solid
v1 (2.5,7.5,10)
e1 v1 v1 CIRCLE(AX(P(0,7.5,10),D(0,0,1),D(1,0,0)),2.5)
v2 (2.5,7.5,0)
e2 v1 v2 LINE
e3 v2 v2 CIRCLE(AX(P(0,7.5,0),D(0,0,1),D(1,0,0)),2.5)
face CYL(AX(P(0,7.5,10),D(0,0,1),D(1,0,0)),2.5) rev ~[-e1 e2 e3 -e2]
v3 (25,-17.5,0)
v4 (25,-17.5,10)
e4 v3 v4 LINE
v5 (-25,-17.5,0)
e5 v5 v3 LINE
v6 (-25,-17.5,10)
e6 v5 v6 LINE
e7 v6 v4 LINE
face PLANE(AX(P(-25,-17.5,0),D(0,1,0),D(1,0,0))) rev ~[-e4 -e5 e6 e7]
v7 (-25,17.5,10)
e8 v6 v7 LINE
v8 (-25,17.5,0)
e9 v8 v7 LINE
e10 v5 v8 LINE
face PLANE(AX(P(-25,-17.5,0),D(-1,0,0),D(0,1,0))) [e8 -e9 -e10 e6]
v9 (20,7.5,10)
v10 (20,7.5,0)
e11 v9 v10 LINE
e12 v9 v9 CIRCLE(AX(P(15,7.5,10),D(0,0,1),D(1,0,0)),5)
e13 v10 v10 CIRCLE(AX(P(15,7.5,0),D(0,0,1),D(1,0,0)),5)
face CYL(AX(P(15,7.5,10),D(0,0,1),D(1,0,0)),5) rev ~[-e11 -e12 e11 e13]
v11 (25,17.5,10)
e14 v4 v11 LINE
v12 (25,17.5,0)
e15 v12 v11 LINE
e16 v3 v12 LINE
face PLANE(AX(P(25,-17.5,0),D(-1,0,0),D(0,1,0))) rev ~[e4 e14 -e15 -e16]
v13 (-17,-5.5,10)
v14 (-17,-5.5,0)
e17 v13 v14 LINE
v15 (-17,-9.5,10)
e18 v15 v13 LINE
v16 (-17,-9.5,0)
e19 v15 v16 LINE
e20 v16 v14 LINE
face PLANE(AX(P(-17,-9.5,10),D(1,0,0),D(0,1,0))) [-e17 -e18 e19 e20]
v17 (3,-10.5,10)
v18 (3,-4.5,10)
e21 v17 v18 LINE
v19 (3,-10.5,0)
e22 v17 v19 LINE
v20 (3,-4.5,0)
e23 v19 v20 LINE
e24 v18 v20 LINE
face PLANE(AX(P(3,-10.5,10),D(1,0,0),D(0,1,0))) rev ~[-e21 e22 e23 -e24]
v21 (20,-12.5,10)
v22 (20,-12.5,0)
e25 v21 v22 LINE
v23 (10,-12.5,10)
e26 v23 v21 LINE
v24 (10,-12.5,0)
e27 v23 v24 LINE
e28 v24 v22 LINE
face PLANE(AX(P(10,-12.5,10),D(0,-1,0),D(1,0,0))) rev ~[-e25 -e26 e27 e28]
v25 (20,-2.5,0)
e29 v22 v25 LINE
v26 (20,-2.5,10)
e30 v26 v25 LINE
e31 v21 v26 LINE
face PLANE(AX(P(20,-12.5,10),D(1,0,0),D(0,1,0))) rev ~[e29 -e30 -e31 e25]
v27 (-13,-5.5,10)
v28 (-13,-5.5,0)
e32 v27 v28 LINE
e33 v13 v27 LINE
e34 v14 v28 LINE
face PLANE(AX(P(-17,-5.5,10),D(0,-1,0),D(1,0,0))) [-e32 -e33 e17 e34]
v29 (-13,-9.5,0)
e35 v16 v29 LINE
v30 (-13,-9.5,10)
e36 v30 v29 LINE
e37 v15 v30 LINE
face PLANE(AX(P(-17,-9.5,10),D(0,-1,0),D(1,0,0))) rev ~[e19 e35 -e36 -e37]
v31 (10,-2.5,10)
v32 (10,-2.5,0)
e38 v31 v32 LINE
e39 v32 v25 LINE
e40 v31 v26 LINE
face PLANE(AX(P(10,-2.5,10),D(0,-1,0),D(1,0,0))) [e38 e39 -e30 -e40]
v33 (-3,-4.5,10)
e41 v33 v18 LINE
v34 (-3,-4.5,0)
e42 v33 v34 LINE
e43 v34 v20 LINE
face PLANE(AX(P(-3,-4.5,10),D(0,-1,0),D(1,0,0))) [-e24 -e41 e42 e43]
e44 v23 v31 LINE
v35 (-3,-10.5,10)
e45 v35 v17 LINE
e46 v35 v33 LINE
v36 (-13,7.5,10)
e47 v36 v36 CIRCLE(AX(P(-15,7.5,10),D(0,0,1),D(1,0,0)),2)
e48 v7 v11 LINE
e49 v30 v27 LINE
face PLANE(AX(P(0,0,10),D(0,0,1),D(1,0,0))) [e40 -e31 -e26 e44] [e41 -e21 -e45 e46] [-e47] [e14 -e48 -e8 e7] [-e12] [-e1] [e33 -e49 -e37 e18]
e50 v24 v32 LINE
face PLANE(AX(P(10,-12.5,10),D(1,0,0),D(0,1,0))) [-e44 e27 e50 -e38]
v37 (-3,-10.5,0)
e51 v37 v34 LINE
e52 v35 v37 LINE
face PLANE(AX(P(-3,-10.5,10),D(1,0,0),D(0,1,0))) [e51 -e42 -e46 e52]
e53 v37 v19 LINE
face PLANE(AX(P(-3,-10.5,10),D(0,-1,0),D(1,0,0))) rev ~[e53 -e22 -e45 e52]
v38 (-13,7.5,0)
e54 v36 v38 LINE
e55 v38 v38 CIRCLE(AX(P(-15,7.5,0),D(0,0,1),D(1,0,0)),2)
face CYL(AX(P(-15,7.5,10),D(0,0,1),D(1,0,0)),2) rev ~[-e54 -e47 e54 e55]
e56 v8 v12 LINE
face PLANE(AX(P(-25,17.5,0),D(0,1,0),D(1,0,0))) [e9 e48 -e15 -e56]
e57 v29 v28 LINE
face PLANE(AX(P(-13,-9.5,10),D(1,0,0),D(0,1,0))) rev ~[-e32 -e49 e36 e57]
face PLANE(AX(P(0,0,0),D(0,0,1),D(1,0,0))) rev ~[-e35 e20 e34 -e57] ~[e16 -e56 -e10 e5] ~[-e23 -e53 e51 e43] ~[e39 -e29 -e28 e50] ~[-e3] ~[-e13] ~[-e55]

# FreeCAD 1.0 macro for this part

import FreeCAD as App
import Part
import Sketcher
from FreeCAD import Vector

doc = App.newDocument("Part")
body = doc.addObject("PartDesign::Body", "Body")

sketch1 = body.newObject("Sketcher::SketchObject", "Sketch")
sketch1.AttachmentSupport = (doc.getObject("XY_Plane"), [""])
sketch1.MapMode = "FlatFace"
sketch1.addGeometry([
    Part.LineSegment(Vector(-25, 17.5, 0), Vector(-25, -17.5, 0)),
    Part.LineSegment(Vector(-25, -17.5, 0), Vector(25, -17.5, 0)),
    Part.LineSegment(Vector(25, -17.5, 0), Vector(25, 17.5, 0)),
    Part.LineSegment(Vector(25, 17.5, 0), Vector(-25, 17.5, 0)),
], False)
sketch1.addConstraint([
    Sketcher.Constraint("Coincident", 0, 2, 1, 1),
    Sketcher.Constraint("Coincident", 1, 2, 2, 1),
    Sketcher.Constraint("Coincident", 2, 2, 3, 1),
    Sketcher.Constraint("Coincident", 3, 2, 0, 1),
    Sketcher.Constraint("Vertical", 0),
    Sketcher.Constraint("Horizontal", 1),
    Sketcher.Constraint("Vertical", 2),
    Sketcher.Constraint("Horizontal", 3),
    Sketcher.Constraint("Symmetric", 0, 2, 2, 2, -1, 1),
    Sketcher.Constraint("DistanceX", 1, 1, 1, 2, 50.0),
    Sketcher.Constraint("DistanceY", 0, 2, 0, 1, 35.0),
])
pad1 = body.newObject("PartDesign::Pad", "Pad")
pad1.Profile = sketch1
pad1.Length = 10

sketch2 = body.newObject("Sketcher::SketchObject", "Sketch001")
sketch2.AttachmentSupport = (doc.getObject("XY_Plane"), [""])
sketch2.MapMode = "FlatFace"
sketch2.AttachmentOffset = App.Placement(Vector(0, 0, 10), App.Rotation())
sketch2.addGeometry([
    Part.Circle(Vector(-15, 7.5, 0), Vector(0, 0, 1), 2),
    Part.Circle(Vector(0, 7.5, 0), Vector(0, 0, 1), 2.5),
    Part.Circle(Vector(15, 7.5, 0), Vector(0, 0, 1), 5),
    Part.LineSegment(Vector(-17, -5.5, 0), Vector(-17, -9.5, 0)),
    Part.LineSegment(Vector(-17, -9.5, 0), Vector(-13, -9.5, 0)),
    Part.LineSegment(Vector(-13, -9.5, 0), Vector(-13, -5.5, 0)),
    Part.LineSegment(Vector(-13, -5.5, 0), Vector(-17, -5.5, 0)),
    Part.LineSegment(Vector(-3, -4.5, 0), Vector(-3, -10.5, 0)),
    Part.LineSegment(Vector(-3, -10.5, 0), Vector(3, -10.5, 0)),
    Part.LineSegment(Vector(3, -10.5, 0), Vector(3, -4.5, 0)),
    Part.LineSegment(Vector(3, -4.5, 0), Vector(-3, -4.5, 0)),
    Part.LineSegment(Vector(10, -2.5, 0), Vector(10, -12.5, 0)),
    Part.LineSegment(Vector(10, -12.5, 0), Vector(20, -12.5, 0)),
    Part.LineSegment(Vector(20, -12.5, 0), Vector(20, -2.5, 0)),
    Part.LineSegment(Vector(20, -2.5, 0), Vector(10, -2.5, 0)),
], False)
sketch2.addConstraint([
    Sketcher.Constraint("Coincident", 3, 2, 4, 1),
    Sketcher.Constraint("Coincident", 4, 2, 5, 1),
    Sketcher.Constraint("Coincident", 5, 2, 6, 1),
    Sketcher.Constraint("Coincident", 6, 2, 3, 1),
    Sketcher.Constraint("Coincident", 7, 2, 8, 1),
    Sketcher.Constraint("Coincident", 8, 2, 9, 1),
    Sketcher.Constraint("Coincident", 9, 2, 10, 1),
    Sketcher.Constraint("Coincident", 10, 2, 7, 1),
    Sketcher.Constraint("Coincident", 11, 2, 12, 1),
    Sketcher.Constraint("Coincident", 12, 2, 13, 1),
    Sketcher.Constraint("Coincident", 13, 2, 14, 1),
    Sketcher.Constraint("Coincident", 14, 2, 11, 1),
    Sketcher.Constraint("Vertical", 3),
    Sketcher.Constraint("Horizontal", 4),
    Sketcher.Constraint("Vertical", 5),
    Sketcher.Constraint("Horizontal", 6),
    Sketcher.Constraint("Vertical", 7),
    Sketcher.Constraint("Horizontal", 8),
    Sketcher.Constraint("Vertical", 9),
    Sketcher.Constraint("Horizontal", 10),
    Sketcher.Constraint("Vertical", 11),
    Sketcher.Constraint("Horizontal", 12),
    Sketcher.Constraint("Vertical", 13),
    Sketcher.Constraint("Horizontal", 14),
    Sketcher.Constraint("Symmetric", 0, 3, 2, 3, -2),
    Sketcher.Constraint("PointOnObject", 1, 3, -2),
    Sketcher.Constraint("Horizontal", 0, 3, 1, 3),
    Sketcher.Constraint("Equal", 6, 3),
    Sketcher.Constraint("Equal", 10, 7),
    Sketcher.Constraint("Equal", 14, 11),
    Sketcher.Constraint("Diameter", 0, 4.0),
    Sketcher.Constraint("Diameter", 1, 5.0),
    Sketcher.Constraint("Diameter", 2, 10.0),
    Sketcher.Constraint("DistanceX", 4, 1, 4, 2, 4.0),
    Sketcher.Constraint("DistanceX", 8, 1, 8, 2, 6.0),
    Sketcher.Constraint("DistanceX", 12, 1, 12, 2, 10.0),
    Sketcher.Constraint("DistanceX", 0, 3, -1, 1, 15.0),
    Sketcher.Constraint("DistanceX", 3, 2, -1, 1, 17.0),
    Sketcher.Constraint("DistanceX", 7, 2, -1, 1, 3.0),
    Sketcher.Constraint("DistanceX", -1, 1, 11, 2, 10.0),
    Sketcher.Constraint("DistanceY", 3, 2, 0, 3, 17.0),
    Sketcher.Constraint("DistanceY", 7, 2, 4, 2, 1.0),
    Sketcher.Constraint("DistanceY", 11, 2, 8, 2, 2.0),
    Sketcher.Constraint("DistanceY", -1, 1, 0, 3, 7.5),
])
pocket1 = body.newObject("PartDesign::Pocket", "Pocket")
pocket1.Profile = sketch2
pocket1.Type = "ThroughAll"

doc.recompute()
